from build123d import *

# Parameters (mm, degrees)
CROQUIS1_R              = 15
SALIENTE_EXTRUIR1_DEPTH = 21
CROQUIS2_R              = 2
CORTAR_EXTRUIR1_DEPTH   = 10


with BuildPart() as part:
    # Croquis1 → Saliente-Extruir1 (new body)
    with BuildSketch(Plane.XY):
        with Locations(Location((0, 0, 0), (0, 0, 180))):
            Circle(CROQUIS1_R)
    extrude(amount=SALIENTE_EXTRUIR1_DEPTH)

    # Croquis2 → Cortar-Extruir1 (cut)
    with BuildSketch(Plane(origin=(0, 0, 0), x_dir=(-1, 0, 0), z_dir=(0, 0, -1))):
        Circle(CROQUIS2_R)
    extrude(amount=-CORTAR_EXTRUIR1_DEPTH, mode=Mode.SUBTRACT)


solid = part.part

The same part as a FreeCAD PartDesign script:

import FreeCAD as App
import Part
import Sketcher
from FreeCAD import Vector

doc = App.newDocument("Part")
body = doc.addObject("PartDesign::Body", "Body")

# Sketch on XY plane
sketch1 = doc.addObject("Sketcher::SketchObject", "Sketch")
body.addObject(sketch1)
sketch1.AttachmentSupport = (doc.XY_Plane, [""])
sketch1.MapMode = "FlatFace"
sketch1.addGeometry(Part.Circle(Vector(0, 0, 0), Vector(0, 0, 1), 15), False)
sketch1.addConstraint([
    Sketcher.Constraint("Coincident", 0, 3, -1, 1),
    Sketcher.Constraint("Diameter", 0, 30.0),
])
pad1 = doc.addObject("PartDesign::Pad", "Pad")
body.addObject(pad1)
pad1.Profile = sketch1
pad1.Length = 21

# Sketch on XY plane
sketch2 = doc.addObject("Sketcher::SketchObject", "Sketch001")
body.addObject(sketch2)
sketch2.AttachmentSupport = (doc.XY_Plane, [""])
sketch2.MapMode = "FlatFace"
sketch2.addGeometry(Part.Circle(Vector(0, 0, 0), Vector(0, 0, 1), 2), False)
sketch2.addConstraint([
    Sketcher.Constraint("Coincident", 0, 3, -1, 1),
    Sketcher.Constraint("Diameter", 0, 4.0),
])
pocket1 = doc.addObject("PartDesign::Pocket", "Pocket")
body.addObject(pocket1)
pocket1.Profile = sketch2
pocket1.Length = 10
pocket1.Reversed = True

doc.recompute()
